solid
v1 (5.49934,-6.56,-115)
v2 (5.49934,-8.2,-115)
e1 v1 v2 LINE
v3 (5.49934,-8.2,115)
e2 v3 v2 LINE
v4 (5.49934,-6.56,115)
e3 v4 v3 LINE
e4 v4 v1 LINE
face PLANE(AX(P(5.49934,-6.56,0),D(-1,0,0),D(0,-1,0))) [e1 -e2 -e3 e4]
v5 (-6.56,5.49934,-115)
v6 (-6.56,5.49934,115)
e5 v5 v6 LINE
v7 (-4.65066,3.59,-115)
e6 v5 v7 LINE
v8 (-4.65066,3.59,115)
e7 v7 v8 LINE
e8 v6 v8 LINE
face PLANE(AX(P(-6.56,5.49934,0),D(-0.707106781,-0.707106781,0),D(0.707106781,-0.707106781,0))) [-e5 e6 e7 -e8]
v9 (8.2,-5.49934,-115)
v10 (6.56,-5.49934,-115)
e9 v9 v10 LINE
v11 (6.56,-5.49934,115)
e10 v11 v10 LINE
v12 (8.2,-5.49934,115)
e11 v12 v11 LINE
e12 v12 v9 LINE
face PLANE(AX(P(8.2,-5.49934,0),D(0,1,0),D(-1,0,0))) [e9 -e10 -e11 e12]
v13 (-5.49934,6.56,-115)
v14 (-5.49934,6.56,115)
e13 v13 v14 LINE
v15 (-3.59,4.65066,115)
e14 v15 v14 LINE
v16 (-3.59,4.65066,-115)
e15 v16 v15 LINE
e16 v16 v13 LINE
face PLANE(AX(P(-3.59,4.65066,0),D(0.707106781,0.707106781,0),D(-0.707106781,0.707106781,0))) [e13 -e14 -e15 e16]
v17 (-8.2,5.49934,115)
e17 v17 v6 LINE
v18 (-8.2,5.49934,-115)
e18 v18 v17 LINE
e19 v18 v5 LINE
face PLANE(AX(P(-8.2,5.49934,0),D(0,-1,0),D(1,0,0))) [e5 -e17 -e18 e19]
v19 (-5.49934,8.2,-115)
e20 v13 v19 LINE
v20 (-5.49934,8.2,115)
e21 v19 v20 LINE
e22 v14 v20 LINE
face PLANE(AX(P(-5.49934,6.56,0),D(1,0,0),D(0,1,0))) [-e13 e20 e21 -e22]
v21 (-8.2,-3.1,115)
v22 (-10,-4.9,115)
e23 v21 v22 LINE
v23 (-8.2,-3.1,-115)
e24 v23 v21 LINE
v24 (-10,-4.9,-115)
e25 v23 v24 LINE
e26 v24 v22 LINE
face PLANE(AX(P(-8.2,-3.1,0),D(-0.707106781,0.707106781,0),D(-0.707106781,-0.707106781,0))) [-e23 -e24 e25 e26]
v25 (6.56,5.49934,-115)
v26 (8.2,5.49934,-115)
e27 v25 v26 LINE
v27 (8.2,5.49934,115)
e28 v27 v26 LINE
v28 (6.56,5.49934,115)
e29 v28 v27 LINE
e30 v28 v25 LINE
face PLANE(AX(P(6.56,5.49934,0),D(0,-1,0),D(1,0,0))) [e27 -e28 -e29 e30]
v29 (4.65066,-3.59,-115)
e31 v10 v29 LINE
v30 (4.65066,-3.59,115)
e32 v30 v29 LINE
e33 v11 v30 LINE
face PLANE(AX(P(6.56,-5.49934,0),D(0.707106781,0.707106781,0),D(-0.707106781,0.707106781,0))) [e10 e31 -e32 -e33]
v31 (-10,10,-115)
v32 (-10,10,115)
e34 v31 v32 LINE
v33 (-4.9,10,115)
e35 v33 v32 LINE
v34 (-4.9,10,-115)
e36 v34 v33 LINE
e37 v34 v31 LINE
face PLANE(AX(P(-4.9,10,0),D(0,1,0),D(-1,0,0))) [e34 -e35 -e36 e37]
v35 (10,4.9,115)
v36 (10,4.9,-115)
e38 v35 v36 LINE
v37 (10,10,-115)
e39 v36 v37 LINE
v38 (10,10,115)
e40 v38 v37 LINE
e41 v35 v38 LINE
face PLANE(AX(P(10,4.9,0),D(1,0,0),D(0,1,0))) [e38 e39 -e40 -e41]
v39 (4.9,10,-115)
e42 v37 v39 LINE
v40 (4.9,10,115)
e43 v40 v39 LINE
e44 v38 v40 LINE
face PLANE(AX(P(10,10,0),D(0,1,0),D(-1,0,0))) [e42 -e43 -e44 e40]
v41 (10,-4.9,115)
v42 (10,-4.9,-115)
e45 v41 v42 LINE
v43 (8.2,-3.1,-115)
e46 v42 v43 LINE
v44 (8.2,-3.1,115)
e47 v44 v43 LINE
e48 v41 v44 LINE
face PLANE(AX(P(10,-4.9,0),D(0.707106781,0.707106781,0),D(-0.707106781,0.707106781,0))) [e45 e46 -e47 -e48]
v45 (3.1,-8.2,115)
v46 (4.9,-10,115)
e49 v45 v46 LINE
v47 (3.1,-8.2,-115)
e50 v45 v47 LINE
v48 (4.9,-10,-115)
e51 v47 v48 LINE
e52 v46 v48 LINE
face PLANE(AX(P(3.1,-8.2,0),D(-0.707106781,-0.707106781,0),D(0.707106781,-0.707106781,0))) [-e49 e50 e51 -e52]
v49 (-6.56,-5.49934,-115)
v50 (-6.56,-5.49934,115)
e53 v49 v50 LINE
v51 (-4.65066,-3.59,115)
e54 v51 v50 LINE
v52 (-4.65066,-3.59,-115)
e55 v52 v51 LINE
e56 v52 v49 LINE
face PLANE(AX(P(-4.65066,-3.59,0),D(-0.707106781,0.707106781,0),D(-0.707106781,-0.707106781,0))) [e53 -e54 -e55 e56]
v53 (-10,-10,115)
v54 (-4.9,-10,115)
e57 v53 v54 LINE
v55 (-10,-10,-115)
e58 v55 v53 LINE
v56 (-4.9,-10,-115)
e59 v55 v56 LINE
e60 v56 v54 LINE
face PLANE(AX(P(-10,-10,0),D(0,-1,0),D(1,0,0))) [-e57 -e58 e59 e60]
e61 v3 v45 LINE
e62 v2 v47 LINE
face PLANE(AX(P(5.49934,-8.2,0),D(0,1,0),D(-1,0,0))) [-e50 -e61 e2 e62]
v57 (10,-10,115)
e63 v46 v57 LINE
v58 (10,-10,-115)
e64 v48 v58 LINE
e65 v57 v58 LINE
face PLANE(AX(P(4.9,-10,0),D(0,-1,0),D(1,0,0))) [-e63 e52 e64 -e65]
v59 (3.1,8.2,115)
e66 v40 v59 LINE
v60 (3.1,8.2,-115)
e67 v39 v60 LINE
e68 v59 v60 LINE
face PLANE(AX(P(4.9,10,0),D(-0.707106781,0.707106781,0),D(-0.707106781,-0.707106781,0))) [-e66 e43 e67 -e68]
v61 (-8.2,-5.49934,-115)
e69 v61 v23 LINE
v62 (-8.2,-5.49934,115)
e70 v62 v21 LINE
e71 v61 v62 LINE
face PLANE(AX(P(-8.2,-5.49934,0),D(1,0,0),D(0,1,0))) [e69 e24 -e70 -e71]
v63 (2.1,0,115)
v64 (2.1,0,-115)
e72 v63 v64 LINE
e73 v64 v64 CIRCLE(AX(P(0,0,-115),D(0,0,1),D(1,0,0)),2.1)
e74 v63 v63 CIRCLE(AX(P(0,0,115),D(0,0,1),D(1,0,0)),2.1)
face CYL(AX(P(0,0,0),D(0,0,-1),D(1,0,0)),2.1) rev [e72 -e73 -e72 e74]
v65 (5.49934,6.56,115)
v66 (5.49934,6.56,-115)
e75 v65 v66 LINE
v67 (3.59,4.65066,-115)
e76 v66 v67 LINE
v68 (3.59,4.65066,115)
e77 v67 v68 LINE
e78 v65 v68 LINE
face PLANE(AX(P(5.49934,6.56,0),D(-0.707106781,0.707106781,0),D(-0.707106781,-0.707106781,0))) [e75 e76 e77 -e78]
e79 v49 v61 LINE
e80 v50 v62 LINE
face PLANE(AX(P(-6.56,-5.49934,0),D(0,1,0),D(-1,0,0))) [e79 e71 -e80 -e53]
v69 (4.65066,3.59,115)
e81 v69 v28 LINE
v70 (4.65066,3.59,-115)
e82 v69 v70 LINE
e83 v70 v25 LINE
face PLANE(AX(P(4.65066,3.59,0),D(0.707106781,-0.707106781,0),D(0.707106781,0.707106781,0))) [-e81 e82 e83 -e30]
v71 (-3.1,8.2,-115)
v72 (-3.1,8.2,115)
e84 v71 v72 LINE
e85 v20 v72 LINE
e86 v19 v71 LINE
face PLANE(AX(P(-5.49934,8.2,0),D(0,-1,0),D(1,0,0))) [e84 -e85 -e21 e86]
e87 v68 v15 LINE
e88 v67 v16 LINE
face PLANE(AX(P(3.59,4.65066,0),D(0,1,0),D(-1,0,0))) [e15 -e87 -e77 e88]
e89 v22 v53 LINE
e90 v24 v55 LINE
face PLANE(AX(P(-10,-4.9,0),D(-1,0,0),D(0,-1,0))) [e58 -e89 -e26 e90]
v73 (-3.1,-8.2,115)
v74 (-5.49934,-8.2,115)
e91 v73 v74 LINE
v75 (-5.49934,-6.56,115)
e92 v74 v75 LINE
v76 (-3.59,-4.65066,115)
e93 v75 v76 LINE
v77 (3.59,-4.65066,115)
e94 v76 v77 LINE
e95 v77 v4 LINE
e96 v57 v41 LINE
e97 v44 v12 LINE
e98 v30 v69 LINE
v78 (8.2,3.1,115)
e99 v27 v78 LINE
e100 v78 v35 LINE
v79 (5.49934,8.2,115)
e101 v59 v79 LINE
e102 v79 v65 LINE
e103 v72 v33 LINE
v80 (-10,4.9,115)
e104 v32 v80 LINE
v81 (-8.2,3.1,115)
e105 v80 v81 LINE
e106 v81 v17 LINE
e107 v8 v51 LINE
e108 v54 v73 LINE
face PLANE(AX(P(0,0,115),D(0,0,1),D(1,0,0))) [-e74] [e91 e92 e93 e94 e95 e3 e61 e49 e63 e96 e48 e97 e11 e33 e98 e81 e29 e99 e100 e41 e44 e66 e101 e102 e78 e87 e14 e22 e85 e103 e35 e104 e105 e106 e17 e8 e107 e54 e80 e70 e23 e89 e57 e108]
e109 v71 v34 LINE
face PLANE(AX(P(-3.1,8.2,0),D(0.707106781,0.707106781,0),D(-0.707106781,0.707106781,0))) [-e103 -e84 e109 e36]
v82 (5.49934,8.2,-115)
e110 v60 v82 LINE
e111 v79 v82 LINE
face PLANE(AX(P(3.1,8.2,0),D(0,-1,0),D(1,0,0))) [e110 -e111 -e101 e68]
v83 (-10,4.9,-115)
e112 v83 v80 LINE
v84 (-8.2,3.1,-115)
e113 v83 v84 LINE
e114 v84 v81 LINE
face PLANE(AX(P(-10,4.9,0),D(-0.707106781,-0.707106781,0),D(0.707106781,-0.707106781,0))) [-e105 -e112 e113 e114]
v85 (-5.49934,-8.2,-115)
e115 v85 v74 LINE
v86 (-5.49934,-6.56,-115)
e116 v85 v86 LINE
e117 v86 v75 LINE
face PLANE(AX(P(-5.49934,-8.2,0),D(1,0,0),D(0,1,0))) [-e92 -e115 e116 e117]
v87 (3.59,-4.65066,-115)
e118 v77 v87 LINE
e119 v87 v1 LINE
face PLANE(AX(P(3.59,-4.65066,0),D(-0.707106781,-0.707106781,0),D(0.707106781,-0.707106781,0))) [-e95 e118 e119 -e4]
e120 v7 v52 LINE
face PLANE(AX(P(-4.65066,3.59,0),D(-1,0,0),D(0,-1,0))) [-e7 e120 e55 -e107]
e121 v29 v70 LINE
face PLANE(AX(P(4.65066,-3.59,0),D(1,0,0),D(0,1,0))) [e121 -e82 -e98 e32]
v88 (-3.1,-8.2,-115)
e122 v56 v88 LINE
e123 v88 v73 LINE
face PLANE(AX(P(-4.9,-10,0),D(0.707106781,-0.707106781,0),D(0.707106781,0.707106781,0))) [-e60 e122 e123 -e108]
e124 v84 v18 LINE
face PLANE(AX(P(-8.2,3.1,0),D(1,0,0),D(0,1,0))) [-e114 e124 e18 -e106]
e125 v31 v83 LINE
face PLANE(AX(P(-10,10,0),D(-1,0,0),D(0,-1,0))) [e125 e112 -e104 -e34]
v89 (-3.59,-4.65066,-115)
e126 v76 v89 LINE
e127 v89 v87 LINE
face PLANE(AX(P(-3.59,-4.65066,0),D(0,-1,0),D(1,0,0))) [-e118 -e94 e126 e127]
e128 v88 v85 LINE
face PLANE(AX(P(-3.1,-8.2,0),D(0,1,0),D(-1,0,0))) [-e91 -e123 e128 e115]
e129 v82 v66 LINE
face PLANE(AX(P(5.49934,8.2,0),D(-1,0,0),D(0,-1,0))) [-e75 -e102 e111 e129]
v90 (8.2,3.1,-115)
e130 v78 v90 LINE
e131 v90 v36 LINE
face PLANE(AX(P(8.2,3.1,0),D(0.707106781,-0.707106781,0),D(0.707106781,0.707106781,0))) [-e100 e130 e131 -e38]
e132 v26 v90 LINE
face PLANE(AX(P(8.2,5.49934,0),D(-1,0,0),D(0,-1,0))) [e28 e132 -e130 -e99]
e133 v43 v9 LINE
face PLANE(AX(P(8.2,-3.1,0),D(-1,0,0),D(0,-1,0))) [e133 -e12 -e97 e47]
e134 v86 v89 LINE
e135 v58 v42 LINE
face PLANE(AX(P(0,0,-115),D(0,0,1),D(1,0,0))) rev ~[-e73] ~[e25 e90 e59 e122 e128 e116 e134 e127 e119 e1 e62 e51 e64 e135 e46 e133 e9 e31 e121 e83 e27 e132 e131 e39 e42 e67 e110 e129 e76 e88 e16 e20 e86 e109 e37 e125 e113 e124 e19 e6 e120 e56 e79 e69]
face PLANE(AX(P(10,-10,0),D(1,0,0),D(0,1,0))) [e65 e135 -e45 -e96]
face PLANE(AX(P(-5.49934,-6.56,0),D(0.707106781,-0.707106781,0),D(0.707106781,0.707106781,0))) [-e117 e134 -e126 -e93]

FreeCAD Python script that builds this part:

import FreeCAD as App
import Part
import Sketcher

V = App.Vector


def add_polygon(sketch, points):
    """Adds a closed chain of lines whose ends are joined by coincident constraints."""
    first, n = sketch.GeometryCount, len(points)
    for a, b in zip(points, points[1:] + points[:1]):
        sketch.addGeometry(Part.LineSegment(App.Vector(*a, 0), App.Vector(*b, 0)), False)
    for i in range(n):
        sketch.addConstraint(Sketcher.Constraint("Coincident", first + i, 2, first + (i + 1) % n, 1))

doc = App.newDocument("Part")
body = doc.addObject("PartDesign::Body", "Body")

# Sketch on XY plane
sketch1 = body.newObject("Sketcher::SketchObject", "Sketch")
sketch1.AttachmentSupport = (doc.getObject("XY_Plane"), [""])
sketch1.MapMode = "FlatFace"
add_polygon(sketch1, [(5.49934, 6.56), (3.59, 4.65066), (-3.59, 4.65066), (-5.49934, 6.56), (-5.49934, 8.2), (-3.1, 8.2), (-4.9, 10), (-10, 10), (-10, 4.9), (-8.2, 3.1), (-8.2, 5.49934), (-6.56, 5.49934), (-4.65066, 3.59), (-4.65066, -3.59), (-6.56, -5.49934), (-8.2, -5.49934), (-8.2, -3.1), (-10, -4.9), (-10, -10), (-4.9, -10), (-3.1, -8.2), (-5.49934, -8.2), (-5.49934, -6.56), (-3.59, -4.65066), (3.59, -4.65066), (5.49934, -6.56), (5.49934, -8.2), (3.1, -8.2), (4.9, -10), (10, -10), (10, -4.9), (8.2, -3.1), (8.2, -5.49934), (6.56, -5.49934), (4.65066, -3.59), (4.65066, 3.59), (6.56, 5.49934), (8.2, 5.49934), (8.2, 3.1), (10, 4.9), (10, 10), (4.9, 10), (3.1, 8.2), (5.49934, 8.2)])  # lines 0-43
sketch1.addGeometry(Part.Circle(V(0, 0, 0), V(0, 0, 1), 2.1), False)  # 44
sketch1.addConstraint(Sketcher.Constraint("Horizontal", 1))
sketch1.addConstraint(Sketcher.Constraint("Vertical", 3))
sketch1.addConstraint(Sketcher.Constraint("Horizontal", 4))
sketch1.addConstraint(Sketcher.Constraint("Horizontal", 6))
sketch1.addConstraint(Sketcher.Constraint("Vertical", 7))
sketch1.addConstraint(Sketcher.Constraint("Vertical", 9))
sketch1.addConstraint(Sketcher.Constraint("Horizontal", 10))
sketch1.addConstraint(Sketcher.Constraint("Vertical", 12))
sketch1.addConstraint(Sketcher.Constraint("Horizontal", 14))
sketch1.addConstraint(Sketcher.Constraint("Vertical", 15))
sketch1.addConstraint(Sketcher.Constraint("Vertical", 17))
sketch1.addConstraint(Sketcher.Constraint("Horizontal", 18))
sketch1.addConstraint(Sketcher.Constraint("Horizontal", 20))
sketch1.addConstraint(Sketcher.Constraint("Vertical", 21))
sketch1.addConstraint(Sketcher.Constraint("Horizontal", 23))
sketch1.addConstraint(Sketcher.Constraint("Vertical", 25))
sketch1.addConstraint(Sketcher.Constraint("Horizontal", 26))
sketch1.addConstraint(Sketcher.Constraint("Horizontal", 28))
sketch1.addConstraint(Sketcher.Constraint("Vertical", 29))
sketch1.addConstraint(Sketcher.Constraint("Vertical", 31))
sketch1.addConstraint(Sketcher.Constraint("Horizontal", 32))
sketch1.addConstraint(Sketcher.Constraint("Vertical", 34))
sketch1.addConstraint(Sketcher.Constraint("Horizontal", 36))
sketch1.addConstraint(Sketcher.Constraint("Vertical", 37))
sketch1.addConstraint(Sketcher.Constraint("Vertical", 39))
sketch1.addConstraint(Sketcher.Constraint("Horizontal", 40))
sketch1.addConstraint(Sketcher.Constraint("Horizontal", 42))
sketch1.addConstraint(Sketcher.Constraint("Vertical", 43))
sketch1.addConstraint(Sketcher.Constraint("Coincident", 44, 3, -1, 1))
sketch1.addConstraint(Sketcher.Constraint("Symmetric", 0, 2, 22, 2, -1, 1))
sketch1.addConstraint(Sketcher.Constraint("Symmetric", 2, 2, 24, 2, -1, 1))
sketch1.addConstraint(Sketcher.Constraint("Symmetric", 4, 2, 26, 2, -1, 1))
sketch1.addConstraint(Sketcher.Constraint("Symmetric", 5, 2, 27, 2, -1, 1))
sketch1.addConstraint(Sketcher.Constraint("Symmetric", 7, 2, 29, 2, -1, 1))
sketch1.addConstraint(Sketcher.Constraint("Symmetric", 8, 2, 30, 2, -1, 1))
sketch1.addConstraint(Sketcher.Constraint("Symmetric", 10, 2, 32, 2, -1, 1))
sketch1.addConstraint(Sketcher.Constraint("Symmetric", 11, 2, 33, 2, -1, 1))
sketch1.addConstraint(Sketcher.Constraint("Symmetric", 13, 2, 35, 2, -1, 1))
sketch1.addConstraint(Sketcher.Constraint("Symmetric", 15, 2, 37, 2, -1, 1))
sketch1.addConstraint(Sketcher.Constraint("Symmetric", 16, 2, 38, 2, -1, 1))
sketch1.addConstraint(Sketcher.Constraint("Symmetric", 18, 2, 40, 2, -1, 1))
sketch1.addConstraint(Sketcher.Constraint("Symmetric", 19, 2, 41, 2, -1, 1))
sketch1.addConstraint(Sketcher.Constraint("Symmetric", 21, 2, 43, 2, -1, 1))
sketch1.addConstraint(Sketcher.Constraint("Symmetric", 21, 2, 24, 2, -2))
sketch1.addConstraint(Sketcher.Constraint("Symmetric", 19, 2, 26, 2, -2))
sketch1.addConstraint(Sketcher.Constraint("Symmetric", 18, 2, 27, 2, -2))
sketch1.addConstraint(Sketcher.Constraint("Symmetric", 16, 2, 29, 2, -2))
sketch1.addConstraint(Sketcher.Constraint("Symmetric", 15, 2, 30, 2, -2))
sketch1.addConstraint(Sketcher.Constraint("Symmetric", 13, 2, 32, 2, -2))
sketch1.addConstraint(Sketcher.Constraint("Perpendicular", 0, 2))
sketch1.addConstraint(Sketcher.Constraint("Parallel", 2, 5))
sketch1.addConstraint(Sketcher.Constraint("Parallel", 5, 8))
sketch1.addConstraint(Sketcher.Constraint("Parallel", 8, 11))
sketch1.addConstraint(Sketcher.Constraint("Perpendicular", 11, 13))
sketch1.addConstraint(Sketcher.Constraint("Parallel", 13, 16))
sketch1.addConstraint(Sketcher.Constraint("Perpendicular", 22, 24))
sketch1.addConstraint(Sketcher.Constraint("Perpendicular", 33, 35))
sketch1.addConstraint(Sketcher.Constraint("Equal", 36, 3))
sketch1.addConstraint(Sketcher.Constraint("Equal", 40, 7))
sketch1.addConstraint(Sketcher.Constraint("Equal", 42, 9))
sketch1.addConstraint(Sketcher.Constraint("Equal", 23, 12))
sketch1.addConstraint(Sketcher.Constraint("Equal", 5, 8))
sketch1.addConstraint(Sketcher.Constraint("Equal", 2, 11))
sketch1.addConstraint(Sketcher.Constraint("Diameter", 44, 4.2))
sketch1.addConstraint(Sketcher.Constraint("DistanceX", 6, 2, 6, 1, 5.1))
sketch1.addConstraint(Sketcher.Constraint("DistanceY", -1, 1, 5, 2, 10.0))
sketch1.addConstraint(Sketcher.Constraint("DistanceY", 16, 2, 8, 2, 8.0))
sketch1.addConstraint(Sketcher.Constraint("DistanceX", 1, 2, 1, 1, 7.18))
sketch1.addConstraint(Sketcher.Constraint("DistanceX", 10, 1, 10, 2, 1.64))
sketch1.addConstraint(Sketcher.Constraint("DistanceX", 4, 1, 4, 2, 2.39934))
pad1 = body.newObject("PartDesign::Pad", "Pad")
pad1.Profile = sketch1
pad1.Length = 230
pad1.Midplane = True

doc.recompute()
